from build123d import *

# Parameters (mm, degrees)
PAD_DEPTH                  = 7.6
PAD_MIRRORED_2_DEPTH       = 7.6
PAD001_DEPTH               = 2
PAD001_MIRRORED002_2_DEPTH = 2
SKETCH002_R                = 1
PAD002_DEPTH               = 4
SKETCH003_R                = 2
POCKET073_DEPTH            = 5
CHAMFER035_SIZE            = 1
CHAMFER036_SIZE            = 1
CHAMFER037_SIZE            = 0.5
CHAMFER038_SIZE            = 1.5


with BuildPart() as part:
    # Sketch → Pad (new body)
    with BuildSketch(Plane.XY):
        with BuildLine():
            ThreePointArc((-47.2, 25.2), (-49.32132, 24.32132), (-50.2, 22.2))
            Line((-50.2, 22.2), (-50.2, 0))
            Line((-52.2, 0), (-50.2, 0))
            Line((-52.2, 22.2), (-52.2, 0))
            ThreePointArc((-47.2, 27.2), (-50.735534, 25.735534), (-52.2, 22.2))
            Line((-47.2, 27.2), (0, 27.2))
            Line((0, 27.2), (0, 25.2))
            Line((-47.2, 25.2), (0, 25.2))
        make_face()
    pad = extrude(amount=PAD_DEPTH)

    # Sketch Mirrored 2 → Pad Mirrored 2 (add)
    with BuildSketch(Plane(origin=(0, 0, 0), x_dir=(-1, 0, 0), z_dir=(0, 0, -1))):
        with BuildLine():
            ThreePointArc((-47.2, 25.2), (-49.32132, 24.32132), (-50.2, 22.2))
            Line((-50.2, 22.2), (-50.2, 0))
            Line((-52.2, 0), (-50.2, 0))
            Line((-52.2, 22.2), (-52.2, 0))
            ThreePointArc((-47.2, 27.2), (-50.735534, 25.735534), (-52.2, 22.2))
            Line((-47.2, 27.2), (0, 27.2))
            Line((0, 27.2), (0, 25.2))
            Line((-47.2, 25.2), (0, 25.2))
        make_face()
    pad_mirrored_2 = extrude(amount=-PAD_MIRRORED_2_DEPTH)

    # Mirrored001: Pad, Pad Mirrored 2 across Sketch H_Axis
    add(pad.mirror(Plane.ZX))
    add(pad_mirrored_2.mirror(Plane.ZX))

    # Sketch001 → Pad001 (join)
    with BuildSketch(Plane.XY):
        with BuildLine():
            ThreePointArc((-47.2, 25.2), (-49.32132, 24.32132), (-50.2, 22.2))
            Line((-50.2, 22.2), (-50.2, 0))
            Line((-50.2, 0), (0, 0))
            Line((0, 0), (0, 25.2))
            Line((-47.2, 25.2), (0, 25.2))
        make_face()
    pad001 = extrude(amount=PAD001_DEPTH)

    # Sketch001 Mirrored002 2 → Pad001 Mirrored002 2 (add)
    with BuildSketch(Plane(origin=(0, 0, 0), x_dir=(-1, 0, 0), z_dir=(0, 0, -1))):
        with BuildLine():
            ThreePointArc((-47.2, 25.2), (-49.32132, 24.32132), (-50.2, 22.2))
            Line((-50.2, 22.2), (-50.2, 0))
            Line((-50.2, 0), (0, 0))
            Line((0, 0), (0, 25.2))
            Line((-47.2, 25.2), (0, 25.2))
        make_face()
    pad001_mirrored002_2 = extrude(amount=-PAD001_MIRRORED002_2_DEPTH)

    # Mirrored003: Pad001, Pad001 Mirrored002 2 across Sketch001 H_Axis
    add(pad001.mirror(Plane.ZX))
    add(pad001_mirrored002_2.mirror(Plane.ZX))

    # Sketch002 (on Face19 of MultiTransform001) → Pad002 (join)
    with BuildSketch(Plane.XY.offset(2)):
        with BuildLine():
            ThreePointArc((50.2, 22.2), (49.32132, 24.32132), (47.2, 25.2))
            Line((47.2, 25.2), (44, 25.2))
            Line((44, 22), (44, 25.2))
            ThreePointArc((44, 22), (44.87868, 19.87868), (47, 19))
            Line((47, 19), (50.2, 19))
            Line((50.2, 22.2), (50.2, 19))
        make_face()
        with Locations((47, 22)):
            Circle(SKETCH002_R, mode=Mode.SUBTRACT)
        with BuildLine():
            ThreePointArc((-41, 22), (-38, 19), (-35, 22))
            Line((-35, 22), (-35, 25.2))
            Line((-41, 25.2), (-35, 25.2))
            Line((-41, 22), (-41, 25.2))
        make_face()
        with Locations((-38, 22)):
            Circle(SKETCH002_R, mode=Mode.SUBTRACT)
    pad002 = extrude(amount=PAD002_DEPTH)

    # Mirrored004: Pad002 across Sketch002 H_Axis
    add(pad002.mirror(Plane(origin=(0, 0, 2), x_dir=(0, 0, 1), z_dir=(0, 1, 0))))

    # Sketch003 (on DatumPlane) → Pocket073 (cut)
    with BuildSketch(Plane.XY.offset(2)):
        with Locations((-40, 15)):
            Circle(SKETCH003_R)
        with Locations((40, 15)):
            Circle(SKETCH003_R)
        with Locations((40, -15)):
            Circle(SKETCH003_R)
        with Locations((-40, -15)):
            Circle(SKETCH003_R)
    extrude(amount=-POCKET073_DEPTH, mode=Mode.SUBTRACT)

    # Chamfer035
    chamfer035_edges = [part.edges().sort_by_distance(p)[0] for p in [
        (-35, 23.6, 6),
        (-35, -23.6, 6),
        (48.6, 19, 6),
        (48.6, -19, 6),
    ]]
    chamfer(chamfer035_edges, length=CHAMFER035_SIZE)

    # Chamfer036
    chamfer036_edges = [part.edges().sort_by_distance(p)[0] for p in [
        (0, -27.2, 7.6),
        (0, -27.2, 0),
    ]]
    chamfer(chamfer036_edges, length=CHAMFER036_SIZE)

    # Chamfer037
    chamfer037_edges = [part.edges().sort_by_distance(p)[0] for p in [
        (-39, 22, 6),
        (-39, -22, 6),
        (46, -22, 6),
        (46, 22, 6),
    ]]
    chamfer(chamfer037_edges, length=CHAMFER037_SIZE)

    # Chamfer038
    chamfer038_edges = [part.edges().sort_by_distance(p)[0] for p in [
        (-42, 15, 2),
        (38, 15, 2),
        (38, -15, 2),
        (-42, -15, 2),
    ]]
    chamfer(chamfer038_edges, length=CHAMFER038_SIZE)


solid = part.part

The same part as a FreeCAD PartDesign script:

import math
import FreeCAD as App
import Part
import Sketcher


def edges_at(feature, points):
    """Names of the edges that pass closest to the given points."""
    edges = feature.Shape.Edges
    near = lambda p: min(range(len(edges)), key=lambda i: edges[i].distToShape(Part.Vertex(*p))[0])
    return sorted({f"Edge{near(p) + 1}" for p in points})

doc = App.newDocument("Part")
params = doc.addObject("Spreadsheet::Sheet", "Params")
for row, (alias, value) in enumerate([
    ("sketch1_radius", "3.000001 mm"),
    ("sketch1_radius2", "5 mm"),
    ("sketch1_width", "47.2 mm"),
    ("sketch1_height", "22.2 mm"),
    ("pad1_length", "7.6 mm"),
    ("sketch2_radius", "3.000001 mm"),
    ("sketch2_radius2", "5 mm"),
    ("sketch2_width", "47.2 mm"),
    ("sketch2_height", "22.2 mm"),
    ("pad2_length", "7.6 mm"),
    ("sketch3_radius", "3.000001 mm"),
    ("sketch3_width", "50.2 mm"),
    ("sketch3_height", "22.2 mm"),
    ("pad3_length", "2 mm"),
    ("sketch4_radius", "3.000001 mm"),
    ("sketch4_width", "50.2 mm"),
    ("sketch4_height", "22.2 mm"),
    ("pad4_length", "2 mm"),
    ("sketch5_diameter", "2 mm"),
    ("sketch5_radius", "3.000001 mm"),
    ("sketch5_width", "3.2 mm"),
    ("pad5_length", "4 mm"),
    ("sketch6_diameter", "4 mm"),
    ("pocket1_length", "5 mm"),
    ("chamfer_size", "1 mm"),
    ("chamfer2_size", "1 mm"),
    ("chamfer3_size", "0.5 mm"),
    ("chamfer4_size", "1.5 mm"),
], start=1):
    params.set(f"A{row}", alias)
    params.set(f"B{row}", "=" + value)
    params.setAlias(f"B{row}", alias)

body = doc.addObject("PartDesign::Body", "Body")

sketch1 = body.newObject("Sketcher::SketchObject", "Sketch")
sketch1.AttachmentSupport = (doc.getObject("XY_Plane"), [""])
sketch1.MapMode = "FlatFace"
sketch1.addGeometry(Part.ArcOfCircle(Part.Circle(App.Vector(-47.2, 22.2, 0), App.Vector(0, 0, 1), 3), math.radians(90), math.radians(180)), False)
sketch1.addGeometry(Part.LineSegment(App.Vector(-47.2, 25.2, 0), App.Vector(0, 25.2, 0)), False)
sketch1.addGeometry(Part.LineSegment(App.Vector(0, 25.2, 0), App.Vector(0, 27.2, 0)), False)
sketch1.addGeometry(Part.LineSegment(App.Vector(0, 27.2, 0), App.Vector(-47.2, 27.2, 0)), False)
sketch1.addGeometry(Part.ArcOfCircle(Part.Circle(App.Vector(-47.2, 22.2, 0), App.Vector(0, 0, 1), 5), math.radians(90), math.radians(180)), False)
sketch1.addGeometry(Part.LineSegment(App.Vector(-52.2, 22.2, 0), App.Vector(-52.2, 0, 0)), False)
sketch1.addGeometry(Part.LineSegment(App.Vector(-52.2, 0, 0), App.Vector(-50.2, 0, 0)), False)
sketch1.addGeometry(Part.LineSegment(App.Vector(-50.2, 0, 0), App.Vector(-50.2, 22.2, 0)), False)
sketch1.addConstraint(Sketcher.Constraint("Tangent", 0, 1, 1, 1))
sketch1.addConstraint(Sketcher.Constraint("Coincident", 1, 2, 2, 1))
sketch1.addConstraint(Sketcher.Constraint("Coincident", 2, 2, 3, 1))
sketch1.addConstraint(Sketcher.Constraint("Tangent", 3, 2, 4, 1))
sketch1.addConstraint(Sketcher.Constraint("Tangent", 4, 2, 5, 1))
sketch1.addConstraint(Sketcher.Constraint("Coincident", 5, 2, 6, 1))
sketch1.addConstraint(Sketcher.Constraint("Coincident", 6, 2, 7, 1))
sketch1.addConstraint(Sketcher.Constraint("Tangent", 7, 2, 0, 2))
sketch1.addConstraint(Sketcher.Constraint("Horizontal", 1))
sketch1.addConstraint(Sketcher.Constraint("Vertical", 2))
sketch1.addConstraint(Sketcher.Constraint("Horizontal", 3))
sketch1.addConstraint(Sketcher.Constraint("Vertical", 5))
sketch1.addConstraint(Sketcher.Constraint("Horizontal", 6))
sketch1.addConstraint(Sketcher.Constraint("Vertical", 7))
sketch1.addConstraint(Sketcher.Constraint("Coincident", 4, 3, 0, 3))
sketch1.addConstraint(Sketcher.Constraint("PointOnObject", 1, 2, -2))
sketch1.addConstraint(Sketcher.Constraint("PointOnObject", 5, 2, -1))
sketch1.addConstraint(Sketcher.Constraint("Radius", 0, 3.000001))
sketch1.addConstraint(Sketcher.Constraint("Radius", 4, 5.0))
sketch1.addConstraint(Sketcher.Constraint("DistanceX", 1, 1, 1, 2, 47.2))
sketch1.addConstraint(Sketcher.Constraint("DistanceY", 5, 2, 5, 1, 22.2))
sketch1.setExpression("Constraints[17]", "Params.sketch1_radius")
sketch1.setExpression("Constraints[18]", "Params.sketch1_radius2")
sketch1.setExpression("Constraints[19]", "Params.sketch1_width")
sketch1.setExpression("Constraints[20]", "Params.sketch1_height")
pad1 = body.newObject("PartDesign::Pad", "Pad")
pad1.Profile = sketch1
pad1.setExpression("Length", "Params.pad1_length")

sketch2 = body.newObject("Sketcher::SketchObject", "Sketch001")
sketch2.AttachmentSupport = (doc.getObject("XY_Plane"), [""])
sketch2.MapMode = "FlatFace"
sketch2.addGeometry(Part.ArcOfCircle(Part.Circle(App.Vector(47.2, 22.2, 0), App.Vector(0, 0, 1), 3), math.radians(0), math.radians(90)), False)
sketch2.addGeometry(Part.LineSegment(App.Vector(47.2, 25.2, 0), App.Vector(0, 25.2, 0)), False)
sketch2.addGeometry(Part.LineSegment(App.Vector(0, 25.2, 0), App.Vector(0, 27.2, 0)), False)
sketch2.addGeometry(Part.LineSegment(App.Vector(0, 27.2, 0), App.Vector(47.2, 27.2, 0)), False)
sketch2.addGeometry(Part.ArcOfCircle(Part.Circle(App.Vector(47.2, 22.2, 0), App.Vector(0, 0, 1), 5), math.radians(0), math.radians(90)), False)
sketch2.addGeometry(Part.LineSegment(App.Vector(52.2, 22.2, 0), App.Vector(52.2, 0, 0)), False)
sketch2.addGeometry(Part.LineSegment(App.Vector(52.2, 0, 0), App.Vector(50.2, 0, 0)), False)
sketch2.addGeometry(Part.LineSegment(App.Vector(50.2, 0, 0), App.Vector(50.2, 22.2, 0)), False)
sketch2.addConstraint(Sketcher.Constraint("Tangent", 0, 2, 1, 1))
sketch2.addConstraint(Sketcher.Constraint("Coincident", 1, 2, 2, 1))
sketch2.addConstraint(Sketcher.Constraint("Coincident", 2, 2, 3, 1))
sketch2.addConstraint(Sketcher.Constraint("Tangent", 3, 2, 4, 2))
sketch2.addConstraint(Sketcher.Constraint("Tangent", 4, 1, 5, 1))
sketch2.addConstraint(Sketcher.Constraint("Coincident", 5, 2, 6, 1))
sketch2.addConstraint(Sketcher.Constraint("Coincident", 6, 2, 7, 1))
sketch2.addConstraint(Sketcher.Constraint("Tangent", 7, 2, 0, 1))
sketch2.addConstraint(Sketcher.Constraint("Horizontal", 1))
sketch2.addConstraint(Sketcher.Constraint("Vertical", 2))
sketch2.addConstraint(Sketcher.Constraint("Horizontal", 3))
sketch2.addConstraint(Sketcher.Constraint("Vertical", 5))
sketch2.addConstraint(Sketcher.Constraint("Horizontal", 6))
sketch2.addConstraint(Sketcher.Constraint("Vertical", 7))
sketch2.addConstraint(Sketcher.Constraint("Coincident", 4, 3, 0, 3))
sketch2.addConstraint(Sketcher.Constraint("PointOnObject", 1, 2, -2))
sketch2.addConstraint(Sketcher.Constraint("PointOnObject", 5, 2, -1))
sketch2.addConstraint(Sketcher.Constraint("Radius", 0, 3.000001))
sketch2.addConstraint(Sketcher.Constraint("Radius", 4, 5.0))
sketch2.addConstraint(Sketcher.Constraint("DistanceX", 1, 2, 1, 1, 47.2))
sketch2.addConstraint(Sketcher.Constraint("DistanceY", 5, 2, 5, 1, 22.2))
sketch2.setExpression("Constraints[17]", "Params.sketch2_radius")
sketch2.setExpression("Constraints[18]", "Params.sketch2_radius2")
sketch2.setExpression("Constraints[19]", "Params.sketch2_width")
sketch2.setExpression("Constraints[20]", "Params.sketch2_height")
pad2 = body.newObject("PartDesign::Pad", "Pad001")
pad2.Profile = sketch2
pad2.setExpression("Length", "Params.pad2_length")
doc.recompute()

mirrored = body.newObject("PartDesign::Mirrored", "Mirrored")
mirrored.Originals = [pad1, pad2]
mirrored.MirrorPlane = (doc.getObject("XZ_Plane"), [""])
body.Tip = mirrored

sketch3 = body.newObject("Sketcher::SketchObject", "Sketch002")
sketch3.AttachmentSupport = (doc.getObject("XY_Plane"), [""])
sketch3.MapMode = "FlatFace"
sketch3.addGeometry(Part.ArcOfCircle(Part.Circle(App.Vector(-47.2, 22.2, 0), App.Vector(0, 0, 1), 3), math.radians(90), math.radians(180)), False)
sketch3.addGeometry(Part.LineSegment(App.Vector(-50.2, 22.2, 0), App.Vector(-50.2, 0, 0)), False)
sketch3.addGeometry(Part.LineSegment(App.Vector(-50.2, 0, 0), App.Vector(0, 0, 0)), False)
sketch3.addGeometry(Part.LineSegment(App.Vector(0, 0, 0), App.Vector(0, 25.2, 0)), False)
sketch3.addGeometry(Part.LineSegment(App.Vector(0, 25.2, 0), App.Vector(-47.2, 25.2, 0)), False)
sketch3.addConstraint(Sketcher.Constraint("Tangent", 0, 2, 1, 1))
sketch3.addConstraint(Sketcher.Constraint("Coincident", 1, 2, 2, 1))
sketch3.addConstraint(Sketcher.Constraint("Coincident", 2, 2, 3, 1))
sketch3.addConstraint(Sketcher.Constraint("Coincident", 3, 2, 4, 1))
sketch3.addConstraint(Sketcher.Constraint("Tangent", 4, 2, 0, 1))
sketch3.addConstraint(Sketcher.Constraint("Vertical", 1))
sketch3.addConstraint(Sketcher.Constraint("Horizontal", 2))
sketch3.addConstraint(Sketcher.Constraint("Vertical", 3))
sketch3.addConstraint(Sketcher.Constraint("Horizontal", 4))
sketch3.addConstraint(Sketcher.Constraint("Coincident", 2, 2, -1, 1))
sketch3.addConstraint(Sketcher.Constraint("Radius", 0, 3.000001))
sketch3.addConstraint(Sketcher.Constraint("DistanceX", 2, 1, 2, 2, 50.2))
sketch3.addConstraint(Sketcher.Constraint("DistanceY", 1, 2, 1, 1, 22.2))
sketch3.setExpression("Constraints[10]", "Params.sketch3_radius")
sketch3.setExpression("Constraints[11]", "Params.sketch3_width")
sketch3.setExpression("Constraints[12]", "Params.sketch3_height")
pad3 = body.newObject("PartDesign::Pad", "Pad002")
pad3.Profile = sketch3
pad3.setExpression("Length", "Params.pad3_length")

sketch4 = body.newObject("Sketcher::SketchObject", "Sketch003")
sketch4.AttachmentSupport = (doc.getObject("XY_Plane"), [""])
sketch4.MapMode = "FlatFace"
sketch4.addGeometry(Part.ArcOfCircle(Part.Circle(App.Vector(47.2, 22.2, 0), App.Vector(0, 0, 1), 3), math.radians(0), math.radians(90)), False)
sketch4.addGeometry(Part.LineSegment(App.Vector(50.2, 22.2, 0), App.Vector(50.2, 0, 0)), False)
sketch4.addGeometry(Part.LineSegment(App.Vector(50.2, 0, 0), App.Vector(0, 0, 0)), False)
sketch4.addGeometry(Part.LineSegment(App.Vector(0, 0, 0), App.Vector(0, 25.2, 0)), False)
sketch4.addGeometry(Part.LineSegment(App.Vector(0, 25.2, 0), App.Vector(47.2, 25.2, 0)), False)
sketch4.addConstraint(Sketcher.Constraint("Tangent", 0, 1, 1, 1))
sketch4.addConstraint(Sketcher.Constraint("Coincident", 1, 2, 2, 1))
sketch4.addConstraint(Sketcher.Constraint("Coincident", 2, 2, 3, 1))
sketch4.addConstraint(Sketcher.Constraint("Coincident", 3, 2, 4, 1))
sketch4.addConstraint(Sketcher.Constraint("Tangent", 4, 2, 0, 2))
sketch4.addConstraint(Sketcher.Constraint("Vertical", 1))
sketch4.addConstraint(Sketcher.Constraint("Horizontal", 2))
sketch4.addConstraint(Sketcher.Constraint("Vertical", 3))
sketch4.addConstraint(Sketcher.Constraint("Horizontal", 4))
sketch4.addConstraint(Sketcher.Constraint("Coincident", 2, 2, -1, 1))
sketch4.addConstraint(Sketcher.Constraint("Radius", 0, 3.000001))
sketch4.addConstraint(Sketcher.Constraint("DistanceX", 2, 2, 2, 1, 50.2))
sketch4.addConstraint(Sketcher.Constraint("DistanceY", 1, 2, 1, 1, 22.2))
sketch4.setExpression("Constraints[10]", "Params.sketch4_radius")
sketch4.setExpression("Constraints[11]", "Params.sketch4_width")
sketch4.setExpression("Constraints[12]", "Params.sketch4_height")
pad4 = body.newObject("PartDesign::Pad", "Pad003")
pad4.Profile = sketch4
pad4.setExpression("Length", "Params.pad4_length")
doc.recompute()

mirrored2 = body.newObject("PartDesign::Mirrored", "Mirrored001")
mirrored2.Originals = [pad3, pad4]
mirrored2.MirrorPlane = (doc.getObject("XZ_Plane"), [""])
body.Tip = mirrored2

sketch5 = body.newObject("Sketcher::SketchObject", "Sketch004")
sketch5.AttachmentSupport = (doc.getObject("XY_Plane"), [""])
sketch5.MapMode = "FlatFace"
sketch5.AttachmentOffset = App.Placement(App.Vector(0, 0, 2), App.Rotation())
sketch5.addGeometry(Part.ArcOfCircle(Part.Circle(App.Vector(47.2, 22.2, 0), App.Vector(0, 0, 1), 3), math.radians(0), math.radians(90)), False)
sketch5.addGeometry(Part.LineSegment(App.Vector(47.2, 25.2, 0), App.Vector(44, 25.2, 0)), False)
sketch5.addGeometry(Part.LineSegment(App.Vector(44, 25.2, 0), App.Vector(44, 22, 0)), False)
sketch5.addGeometry(Part.ArcOfCircle(Part.Circle(App.Vector(47, 22, 0), App.Vector(0, 0, 1), 3), math.radians(-180), math.radians(-90)), False)
sketch5.addGeometry(Part.LineSegment(App.Vector(47, 19, 0), App.Vector(50.2, 19, 0)), False)
sketch5.addGeometry(Part.LineSegment(App.Vector(50.2, 19, 0), App.Vector(50.2, 22.2, 0)), False)
sketch5.addGeometry(Part.Circle(App.Vector(47, 22, 0), App.Vector(0, 0, 1), 1), False)
sketch5.addGeometry(Part.ArcOfCircle(Part.Circle(App.Vector(-38, 22, 0), App.Vector(0, 0, 1), 3), math.radians(180), math.radians(360)), False)
sketch5.addGeometry(Part.LineSegment(App.Vector(-35, 22, 0), App.Vector(-35, 25.2, 0)), False)
sketch5.addGeometry(Part.LineSegment(App.Vector(-35, 25.2, 0), App.Vector(-41, 25.2, 0)), False)
sketch5.addGeometry(Part.LineSegment(App.Vector(-41, 25.2, 0), App.Vector(-41, 22, 0)), False)
sketch5.addGeometry(Part.Circle(App.Vector(-38, 22, 0), App.Vector(0, 0, 1), 1), False)
sketch5.addConstraint(Sketcher.Constraint("Tangent", 0, 2, 1, 1))
sketch5.addConstraint(Sketcher.Constraint("Coincident", 1, 2, 2, 1))
sketch5.addConstraint(Sketcher.Constraint("Tangent", 2, 2, 3, 1))
sketch5.addConstraint(Sketcher.Constraint("Tangent", 3, 2, 4, 1))
sketch5.addConstraint(Sketcher.Constraint("Coincident", 4, 2, 5, 1))
sketch5.addConstraint(Sketcher.Constraint("Tangent", 5, 2, 0, 1))
sketch5.addConstraint(Sketcher.Constraint("Tangent", 7, 2, 8, 1))
sketch5.addConstraint(Sketcher.Constraint("Coincident", 8, 2, 9, 1))
sketch5.addConstraint(Sketcher.Constraint("Coincident", 9, 2, 10, 1))
sketch5.addConstraint(Sketcher.Constraint("Tangent", 10, 2, 7, 1))
sketch5.addConstraint(Sketcher.Constraint("Horizontal", 1))
sketch5.addConstraint(Sketcher.Constraint("Vertical", 2))
sketch5.addConstraint(Sketcher.Constraint("Horizontal", 4))
sketch5.addConstraint(Sketcher.Constraint("Vertical", 5))
sketch5.addConstraint(Sketcher.Constraint("Vertical", 8))
sketch5.addConstraint(Sketcher.Constraint("Horizontal", 9))
sketch5.addConstraint(Sketcher.Constraint("Vertical", 10))
sketch5.addConstraint(Sketcher.Constraint("Coincident", 6, 3, 3, 3))
sketch5.addConstraint(Sketcher.Constraint("Coincident", 11, 3, 7, 3))
sketch5.addConstraint(Sketcher.Constraint("Equal", 0, 3))
sketch5.addConstraint(Sketcher.Constraint("Equal", 3, 7))
sketch5.addConstraint(Sketcher.Constraint("Equal", 6, 11))
sketch5.addConstraint(Sketcher.Constraint("Horizontal", 6, 3, 7, 3))
sketch5.addConstraint(Sketcher.Constraint("Horizontal", 1, 2, 8, 2))
sketch5.addConstraint(Sketcher.Constraint("Equal", 4, 2))
sketch5.addConstraint(Sketcher.Constraint("Diameter", 6, 2.0))
sketch5.addConstraint(Sketcher.Constraint("Radius", 0, 3.000001))
sketch5.addConstraint(Sketcher.Constraint("DistanceX", 1, 2, 1, 1, 3.2))
sketch5.addConstraint(Sketcher.Constraint("DistanceX", -1, 1, 3, 3, 47.000001))
sketch5.addConstraint(Sketcher.Constraint("DistanceY", -1, 1, 3, 3, 22.000001))
sketch5.addConstraint(Sketcher.Constraint("DistanceX", 7, 3, -1, 1, 38.0))
sketch5.setExpression("Constraints[25]", "Params.sketch5_diameter")
sketch5.setExpression("Constraints[26]", "Params.sketch5_radius")
sketch5.setExpression("Constraints[27]", "Params.sketch5_width")
pad5 = body.newObject("PartDesign::Pad", "Pad004")
pad5.Profile = sketch5
pad5.setExpression("Length", "Params.pad5_length")
doc.recompute()

mirrored3 = body.newObject("PartDesign::Mirrored", "Mirrored002")
mirrored3.Originals = [pad5]
mirrored3.MirrorPlane = (doc.getObject("XZ_Plane"), [""])
body.Tip = mirrored3

sketch6 = body.newObject("Sketcher::SketchObject", "Sketch005")
sketch6.AttachmentSupport = (doc.getObject("XY_Plane"), [""])
sketch6.MapMode = "FlatFace"
sketch6.AttachmentOffset = App.Placement(App.Vector(0, 0, 2), App.Rotation())
sketch6.addGeometry(Part.Circle(App.Vector(-40, 15, 0), App.Vector(0, 0, 1), 2), False)
sketch6.addGeometry(Part.Circle(App.Vector(40, 15, 0), App.Vector(0, 0, 1), 2), False)
sketch6.addGeometry(Part.Circle(App.Vector(40, -15, 0), App.Vector(0, 0, 1), 2), False)
sketch6.addGeometry(Part.Circle(App.Vector(-40, -15, 0), App.Vector(0, 0, 1), 2), False)
sketch6.addConstraint(Sketcher.Constraint("Equal", 0, 1))
sketch6.addConstraint(Sketcher.Constraint("Equal", 1, 2))
sketch6.addConstraint(Sketcher.Constraint("Equal", 2, 3))
sketch6.addConstraint(Sketcher.Constraint("Symmetric", 0, 3, 2, 3, -1, 1))
sketch6.addConstraint(Sketcher.Constraint("Symmetric", 1, 3, 3, 3, -1, 1))
sketch6.addConstraint(Sketcher.Constraint("Symmetric", 0, 3, 1, 3, -2))
sketch6.addConstraint(Sketcher.Constraint("Diameter", 0, 4.0))
sketch6.addConstraint(Sketcher.Constraint("DistanceX", 0, 3, -1, 1, 40.0))
sketch6.addConstraint(Sketcher.Constraint("DistanceY", -1, 1, 0, 3, 15.0))
sketch6.setExpression("Constraints[6]", "Params.sketch6_diameter")
pocket1 = body.newObject("PartDesign::Pocket", "Pocket")
pocket1.Profile = sketch6
pocket1.setExpression("Length", "Params.pocket1_length")
doc.recompute()

chamfer = body.newObject("PartDesign::Chamfer", "Chamfer")
chamfer.Base = (pocket1, edges_at(pocket1, [
    (-35, 23.6, 6),
    (-35, -23.6, 6),
    (48.6, 19, 6),
    (48.6, -19, 6),
]))
chamfer.setExpression("Size", "Params.chamfer_size")
doc.recompute()

chamfer2 = body.newObject("PartDesign::Chamfer", "Chamfer001")
chamfer2.Base = (chamfer, edges_at(chamfer, [(0, -27.2, 7.6), (0, -27.2, 0)]))
chamfer2.setExpression("Size", "Params.chamfer2_size")
doc.recompute()

chamfer3 = body.newObject("PartDesign::Chamfer", "Chamfer002")
chamfer3.Base = (chamfer2, edges_at(chamfer2, [
    (-39, 22, 6),
    (-39, -22, 6),
    (46, -22, 6),
    (46, 22, 6),
]))
chamfer3.setExpression("Size", "Params.chamfer3_size")
doc.recompute()

chamfer4 = body.newObject("PartDesign::Chamfer", "Chamfer003")
chamfer4.Base = (chamfer3, edges_at(chamfer3, [
    (-42, 15, 2),
    (38, 15, 2),
    (38, -15, 2),
    (-42, -15, 2),
]))
chamfer4.setExpression("Size", "Params.chamfer4_size")

doc.recompute()
